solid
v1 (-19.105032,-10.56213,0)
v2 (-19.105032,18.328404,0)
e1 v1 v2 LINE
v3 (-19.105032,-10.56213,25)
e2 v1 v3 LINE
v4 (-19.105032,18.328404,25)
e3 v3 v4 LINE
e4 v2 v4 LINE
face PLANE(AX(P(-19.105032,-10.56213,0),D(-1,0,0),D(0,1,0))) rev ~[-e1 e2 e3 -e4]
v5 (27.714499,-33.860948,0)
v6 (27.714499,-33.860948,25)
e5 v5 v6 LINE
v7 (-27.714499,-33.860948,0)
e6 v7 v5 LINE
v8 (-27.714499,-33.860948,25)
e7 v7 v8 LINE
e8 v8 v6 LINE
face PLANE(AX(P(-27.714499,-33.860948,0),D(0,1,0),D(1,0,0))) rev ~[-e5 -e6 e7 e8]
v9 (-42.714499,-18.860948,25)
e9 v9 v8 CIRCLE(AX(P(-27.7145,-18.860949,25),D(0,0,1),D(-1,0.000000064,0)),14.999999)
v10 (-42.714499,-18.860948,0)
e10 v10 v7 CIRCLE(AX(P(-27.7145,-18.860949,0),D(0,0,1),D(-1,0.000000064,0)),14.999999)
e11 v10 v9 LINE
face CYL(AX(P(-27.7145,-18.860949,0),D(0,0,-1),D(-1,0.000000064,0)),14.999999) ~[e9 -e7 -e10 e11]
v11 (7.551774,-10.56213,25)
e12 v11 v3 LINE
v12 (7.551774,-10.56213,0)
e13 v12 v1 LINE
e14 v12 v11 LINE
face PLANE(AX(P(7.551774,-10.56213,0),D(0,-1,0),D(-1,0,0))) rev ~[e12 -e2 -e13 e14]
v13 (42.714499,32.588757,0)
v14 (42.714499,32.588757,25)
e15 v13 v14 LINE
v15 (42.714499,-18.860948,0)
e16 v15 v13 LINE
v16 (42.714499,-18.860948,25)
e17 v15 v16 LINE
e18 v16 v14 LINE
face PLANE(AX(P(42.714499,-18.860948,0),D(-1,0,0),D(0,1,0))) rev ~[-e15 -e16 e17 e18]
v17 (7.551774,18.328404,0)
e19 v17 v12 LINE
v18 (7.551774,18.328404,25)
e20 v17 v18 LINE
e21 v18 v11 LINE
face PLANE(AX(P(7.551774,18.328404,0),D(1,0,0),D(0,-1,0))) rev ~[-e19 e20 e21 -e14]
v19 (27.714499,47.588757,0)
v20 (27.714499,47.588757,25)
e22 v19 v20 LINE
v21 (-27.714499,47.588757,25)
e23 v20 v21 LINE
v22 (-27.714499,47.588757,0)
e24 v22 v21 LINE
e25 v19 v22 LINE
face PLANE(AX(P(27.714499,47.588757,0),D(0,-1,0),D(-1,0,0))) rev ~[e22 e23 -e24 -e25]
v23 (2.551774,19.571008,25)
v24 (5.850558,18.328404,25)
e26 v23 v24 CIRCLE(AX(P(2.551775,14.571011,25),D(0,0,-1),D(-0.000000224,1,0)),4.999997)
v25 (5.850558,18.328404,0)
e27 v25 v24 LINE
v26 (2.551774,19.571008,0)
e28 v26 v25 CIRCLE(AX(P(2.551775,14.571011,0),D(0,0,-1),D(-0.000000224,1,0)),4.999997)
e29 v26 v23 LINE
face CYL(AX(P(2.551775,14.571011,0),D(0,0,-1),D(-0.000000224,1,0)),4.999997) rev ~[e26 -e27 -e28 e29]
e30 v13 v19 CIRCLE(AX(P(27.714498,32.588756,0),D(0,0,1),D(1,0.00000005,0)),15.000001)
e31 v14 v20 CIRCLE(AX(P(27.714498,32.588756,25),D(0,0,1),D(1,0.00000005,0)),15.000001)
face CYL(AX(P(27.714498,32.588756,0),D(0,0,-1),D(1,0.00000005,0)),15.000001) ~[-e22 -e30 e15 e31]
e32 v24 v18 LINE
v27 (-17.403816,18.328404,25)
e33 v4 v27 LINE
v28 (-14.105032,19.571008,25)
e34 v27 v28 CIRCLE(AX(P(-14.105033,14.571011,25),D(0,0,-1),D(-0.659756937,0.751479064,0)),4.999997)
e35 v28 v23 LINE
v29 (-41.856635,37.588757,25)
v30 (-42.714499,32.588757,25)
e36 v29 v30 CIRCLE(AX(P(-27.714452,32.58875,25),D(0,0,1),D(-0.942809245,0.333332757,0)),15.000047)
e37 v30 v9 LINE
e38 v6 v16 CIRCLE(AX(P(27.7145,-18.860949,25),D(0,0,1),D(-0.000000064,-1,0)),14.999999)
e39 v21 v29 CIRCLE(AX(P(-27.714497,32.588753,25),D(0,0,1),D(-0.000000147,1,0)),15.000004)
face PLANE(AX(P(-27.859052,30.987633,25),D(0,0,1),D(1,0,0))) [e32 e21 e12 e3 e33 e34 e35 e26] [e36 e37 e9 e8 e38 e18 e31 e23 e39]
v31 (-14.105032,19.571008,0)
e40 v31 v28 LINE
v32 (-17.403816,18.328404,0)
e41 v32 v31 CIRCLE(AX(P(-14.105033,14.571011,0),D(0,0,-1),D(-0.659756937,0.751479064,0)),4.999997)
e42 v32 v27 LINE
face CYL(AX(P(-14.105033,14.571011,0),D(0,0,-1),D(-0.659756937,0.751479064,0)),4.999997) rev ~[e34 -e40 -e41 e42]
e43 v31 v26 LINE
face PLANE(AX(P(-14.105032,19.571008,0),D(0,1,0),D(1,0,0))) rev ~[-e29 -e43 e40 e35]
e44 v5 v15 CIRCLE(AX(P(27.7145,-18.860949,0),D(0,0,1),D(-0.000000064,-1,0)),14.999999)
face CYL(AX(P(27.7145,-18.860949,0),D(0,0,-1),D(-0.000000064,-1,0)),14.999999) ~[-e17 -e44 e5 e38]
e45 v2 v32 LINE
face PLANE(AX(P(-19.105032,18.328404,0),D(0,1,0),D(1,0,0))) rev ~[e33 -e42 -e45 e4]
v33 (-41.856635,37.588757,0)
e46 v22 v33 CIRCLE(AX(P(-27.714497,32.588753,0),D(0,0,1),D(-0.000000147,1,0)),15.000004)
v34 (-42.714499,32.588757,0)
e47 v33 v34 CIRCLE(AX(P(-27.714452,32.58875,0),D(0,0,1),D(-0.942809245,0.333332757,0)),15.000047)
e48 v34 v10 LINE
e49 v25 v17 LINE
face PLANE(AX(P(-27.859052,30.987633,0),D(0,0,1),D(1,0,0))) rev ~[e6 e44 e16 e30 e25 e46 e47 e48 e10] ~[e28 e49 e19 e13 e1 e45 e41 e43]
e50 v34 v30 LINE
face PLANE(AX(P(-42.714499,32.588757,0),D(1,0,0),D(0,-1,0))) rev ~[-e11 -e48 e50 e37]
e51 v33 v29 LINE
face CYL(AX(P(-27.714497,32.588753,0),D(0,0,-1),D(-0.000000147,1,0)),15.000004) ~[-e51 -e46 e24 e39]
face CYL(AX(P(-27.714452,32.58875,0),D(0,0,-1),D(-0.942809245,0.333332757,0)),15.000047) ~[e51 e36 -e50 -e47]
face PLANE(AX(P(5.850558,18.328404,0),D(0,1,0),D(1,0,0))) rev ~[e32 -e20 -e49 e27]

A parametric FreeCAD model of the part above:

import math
import FreeCAD as App
import Part
import Sketcher
from FreeCAD import Vector
Q = App.Units.Quantity

doc = App.newDocument("Part")
params = doc.addObject("Spreadsheet::Sheet", "Params")
for row, (alias, value) in enumerate([
    ("sketch1_radius", "14.999999 mm"),
    ("sketch1_radius2", "14.999999 mm"),
    ("sketch1_radius3", "15.000001 mm"),
    ("pad1_length", "25 mm"),
], start=1):
    params.set(f"A{row}", alias)
    params.set(f"B{row}", "=" + value)
    params.setAlias(f"B{row}", alias)

body = doc.addObject("PartDesign::Body", "Body")

# Sketch on XY plane
sketch1 = body.newObject("Sketcher::SketchObject", "Sketch")
sketch1.AttachmentSupport = (doc.getObject("XY_Plane"), [""])
sketch1.MapMode = "FlatFace"
sketch1.addGeometry(Part.ArcOfCircle(Part.Circle(Vector(-27.714497, 32.588753, 0), Vector(0, 0, 1), 15.000004), math.radians(90.000008), math.radians(160.528769)), False)
sketch1.addGeometry(Part.ArcOfCircle(Part.Circle(Vector(-27.714452, 32.58875, 0), Vector(0, 0, 1), 15.000047), math.radians(160.528814), math.radians(179.999973)), False)
sketch1.addGeometry(Part.LineSegment(Vector(-42.714499, 32.588757, 0), Vector(-42.714499, -18.860948, 0)), False)
sketch1.addGeometry(Part.ArcOfCircle(Part.Circle(Vector(-27.7145, -18.860949, 0), Vector(0, 0, 1), 14.999999), math.radians(179.999996), math.radians(270.000004)), False)
sketch1.addGeometry(Part.LineSegment(Vector(-27.714499, -33.860948, 0), Vector(27.714499, -33.860948, 0)), False)
sketch1.addGeometry(Part.ArcOfCircle(Part.Circle(Vector(27.7145, -18.860949, 0), Vector(0, 0, 1), 14.999999), math.radians(-90.000004), math.radians(0.000004)), False)
sketch1.addGeometry(Part.LineSegment(Vector(42.714499, -18.860948, 0), Vector(42.714499, 32.588757, 0)), False)
sketch1.addGeometry(Part.ArcOfCircle(Part.Circle(Vector(27.714498, 32.588756, 0), Vector(0, 0, 1), 15.000001), math.radians(0.000003), math.radians(89.999997)), False)
sketch1.addGeometry(Part.LineSegment(Vector(27.714499, 47.588757, 0), Vector(-27.714499, 47.588757, 0)), False)
sketch1.addGeometry(Part.LineSegment(Vector(-19.105032, -10.56213, 0), Vector(-19.105032, 18.328404, 0)), False)
sketch1.addGeometry(Part.LineSegment(Vector(-19.105032, 18.328404, 0), Vector(-17.403816, 18.328404, 0)), False)
sketch1.addGeometry(Part.ArcOfCircle(Part.Circle(Vector(-14.105033, 14.571011, 0), Vector(0, 0, 1), 4.999997), math.radians(89.999987), math.radians(131.281338)), False)
sketch1.addGeometry(Part.LineSegment(Vector(-14.105032, 19.571008, 0), Vector(2.551774, 19.571008, 0)), False)
sketch1.addGeometry(Part.ArcOfCircle(Part.Circle(Vector(2.551775, 14.571011, 0), Vector(0, 0, 1), 4.999997), math.radians(48.718662), math.radians(90.000013)), False)
sketch1.addGeometry(Part.LineSegment(Vector(5.850558, 18.328404, 0), Vector(7.551774, 18.328404, 0)), False)
sketch1.addGeometry(Part.LineSegment(Vector(7.551774, 18.328404, 0), Vector(7.551774, -10.56213, 0)), False)
sketch1.addGeometry(Part.LineSegment(Vector(7.551774, -10.56213, 0), Vector(-19.105032, -10.56213, 0)), False)
sketch1.addConstraint(Sketcher.Constraint("Coincident", 0, 2, 1, 1))
sketch1.addConstraint(Sketcher.Constraint("Coincident", 1, 2, 2, 1))
sketch1.addConstraint(Sketcher.Constraint("Coincident", 2, 2, 3, 1))
sketch1.addConstraint(Sketcher.Constraint("Coincident", 3, 2, 4, 1))
sketch1.addConstraint(Sketcher.Constraint("Coincident", 4, 2, 5, 1))
sketch1.addConstraint(Sketcher.Constraint("Coincident", 5, 2, 6, 1))
sketch1.addConstraint(Sketcher.Constraint("Coincident", 6, 2, 7, 1))
sketch1.addConstraint(Sketcher.Constraint("Coincident", 7, 2, 8, 1))
sketch1.addConstraint(Sketcher.Constraint("Coincident", 8, 2, 0, 1))
sketch1.addConstraint(Sketcher.Constraint("Coincident", 9, 2, 10, 1))
sketch1.addConstraint(Sketcher.Constraint("Coincident", 10, 2, 11, 2))
sketch1.addConstraint(Sketcher.Constraint("Coincident", 11, 1, 12, 1))
sketch1.addConstraint(Sketcher.Constraint("Coincident", 12, 2, 13, 2))
sketch1.addConstraint(Sketcher.Constraint("Coincident", 13, 1, 14, 1))
sketch1.addConstraint(Sketcher.Constraint("Coincident", 14, 2, 15, 1))
sketch1.addConstraint(Sketcher.Constraint("Coincident", 15, 2, 16, 1))
sketch1.addConstraint(Sketcher.Constraint("Coincident", 16, 2, 9, 1))
sketch1.addConstraint(Sketcher.Constraint("Vertical", 2))
sketch1.addConstraint(Sketcher.Constraint("Horizontal", 4))
sketch1.addConstraint(Sketcher.Constraint("Vertical", 6))
sketch1.addConstraint(Sketcher.Constraint("Horizontal", 8))
sketch1.addConstraint(Sketcher.Constraint("Vertical", 9))
sketch1.addConstraint(Sketcher.Constraint("Horizontal", 10))
sketch1.addConstraint(Sketcher.Constraint("Horizontal", 12))
sketch1.addConstraint(Sketcher.Constraint("Horizontal", 14))
sketch1.addConstraint(Sketcher.Constraint("Vertical", 15))
sketch1.addConstraint(Sketcher.Constraint("Horizontal", 16))
sketch1.addConstraint(Sketcher.Constraint("Radius", 3, Q("14.999999 mm")))
sketch1.addConstraint(Sketcher.Constraint("Radius", 5, Q("14.999999 mm")))
sketch1.addConstraint(Sketcher.Constraint("Radius", 7, Q("15.000001 mm")))
sketch1.addConstraint(Sketcher.Constraint("DistanceY", 1, 2, 0, 2, Q("5 mm")))
sketch1.addConstraint(Sketcher.Constraint("DistanceX", 2, 2, 3, 2, Q("15 mm")))
sketch1.addConstraint(Sketcher.Constraint("DistanceY", 3, 2, 2, 2, Q("15 mm")))
sketch1.addConstraint(Sketcher.Constraint("DistanceX", 4, 2, 5, 2, Q("15 mm")))
sketch1.addConstraint(Sketcher.Constraint("DistanceY", 4, 2, 5, 2, Q("15 mm")))
sketch1.addConstraint(Sketcher.Constraint("DistanceX", 7, 2, 6, 2, Q("15 mm")))
sketch1.addConstraint(Sketcher.Constraint("DistanceY", 6, 2, 7, 2, Q("15 mm")))
sketch1.addConstraint(Sketcher.Constraint("DistanceY", 0, 2, 8, 2, Q("10 mm")))
sketch1.addConstraint(Sketcher.Constraint("DistanceX", 1, 2, 8, 2, Q("15 mm")))
sketch1.addConstraint(Sketcher.Constraint("DistanceX", 9, 2, 11, 3, Q("4.999999 mm")))
sketch1.addConstraint(Sketcher.Constraint("DistanceX", 9, 2, 11, 1, Q("5 mm")))
sketch1.addConstraint(Sketcher.Constraint("DistanceX", 12, 2, 14, 2, Q("5 mm")))
sketch1.addConstraint(Sketcher.Constraint("DistanceX", 13, 3, 14, 2, Q("4.999999 mm")))
sketch1.addConstraint(Sketcher.Constraint("Radius", 0, Q("15.000004 mm")))
sketch1.addConstraint(Sketcher.Constraint("Radius", 1, Q("15.000047 mm")))
sketch1.addConstraint(Sketcher.Constraint("Radius", 11, Q("4.999997 mm")))
sketch1.addConstraint(Sketcher.Constraint("Radius", 13, Q("4.999997 mm")))
sketch1.addConstraint(Sketcher.Constraint("DistanceX", 3, 3, 5, 3, Q("55.429 mm")))
sketch1.addConstraint(Sketcher.Constraint("DistanceX", 3, 3, -1, 1, Q("27.7145 mm")))
sketch1.addConstraint(Sketcher.Constraint("DistanceY", 3, 3, 1, 3, Q("51.449699 mm")))
sketch1.addConstraint(Sketcher.Constraint("DistanceX", 0, 2, 11, 3, Q("27.751602 mm")))
sketch1.addConstraint(Sketcher.Constraint("DistanceY", 2, 2, 0, 3, Q("51.449701 mm")))
sketch1.addConstraint(Sketcher.Constraint("DistanceX", 10, 1, 10, 2, Q("1.701216 mm")))
sketch1.addConstraint(Sketcher.Constraint("DistanceX", 12, 1, 12, 2, Q("16.656806 mm")))
sketch1.addConstraint(Sketcher.Constraint("DistanceX", 14, 1, 14, 2, Q("1.701216 mm")))
sketch1.addConstraint(Sketcher.Constraint("DistanceY", 9, 1, 9, 2, Q("28.890534 mm")))
sketch1.addConstraint(Sketcher.Constraint("DistanceY", -1, 1, 1, 3, Q("32.58875 mm")))
sketch1.addConstraint(Sketcher.Constraint("DistanceY", -1, 1, 11, 3, Q("14.571011 mm")))
sketch1.setExpression("Constraints[27]", "Params.sketch1_radius")
sketch1.setExpression("Constraints[28]", "Params.sketch1_radius2")
sketch1.setExpression("Constraints[29]", "Params.sketch1_radius3")
pad1 = body.newObject("PartDesign::Pad", "Pad")
pad1.Profile = sketch1
pad1.setExpression("Length", "Params.pad1_length")

doc.recompute()
